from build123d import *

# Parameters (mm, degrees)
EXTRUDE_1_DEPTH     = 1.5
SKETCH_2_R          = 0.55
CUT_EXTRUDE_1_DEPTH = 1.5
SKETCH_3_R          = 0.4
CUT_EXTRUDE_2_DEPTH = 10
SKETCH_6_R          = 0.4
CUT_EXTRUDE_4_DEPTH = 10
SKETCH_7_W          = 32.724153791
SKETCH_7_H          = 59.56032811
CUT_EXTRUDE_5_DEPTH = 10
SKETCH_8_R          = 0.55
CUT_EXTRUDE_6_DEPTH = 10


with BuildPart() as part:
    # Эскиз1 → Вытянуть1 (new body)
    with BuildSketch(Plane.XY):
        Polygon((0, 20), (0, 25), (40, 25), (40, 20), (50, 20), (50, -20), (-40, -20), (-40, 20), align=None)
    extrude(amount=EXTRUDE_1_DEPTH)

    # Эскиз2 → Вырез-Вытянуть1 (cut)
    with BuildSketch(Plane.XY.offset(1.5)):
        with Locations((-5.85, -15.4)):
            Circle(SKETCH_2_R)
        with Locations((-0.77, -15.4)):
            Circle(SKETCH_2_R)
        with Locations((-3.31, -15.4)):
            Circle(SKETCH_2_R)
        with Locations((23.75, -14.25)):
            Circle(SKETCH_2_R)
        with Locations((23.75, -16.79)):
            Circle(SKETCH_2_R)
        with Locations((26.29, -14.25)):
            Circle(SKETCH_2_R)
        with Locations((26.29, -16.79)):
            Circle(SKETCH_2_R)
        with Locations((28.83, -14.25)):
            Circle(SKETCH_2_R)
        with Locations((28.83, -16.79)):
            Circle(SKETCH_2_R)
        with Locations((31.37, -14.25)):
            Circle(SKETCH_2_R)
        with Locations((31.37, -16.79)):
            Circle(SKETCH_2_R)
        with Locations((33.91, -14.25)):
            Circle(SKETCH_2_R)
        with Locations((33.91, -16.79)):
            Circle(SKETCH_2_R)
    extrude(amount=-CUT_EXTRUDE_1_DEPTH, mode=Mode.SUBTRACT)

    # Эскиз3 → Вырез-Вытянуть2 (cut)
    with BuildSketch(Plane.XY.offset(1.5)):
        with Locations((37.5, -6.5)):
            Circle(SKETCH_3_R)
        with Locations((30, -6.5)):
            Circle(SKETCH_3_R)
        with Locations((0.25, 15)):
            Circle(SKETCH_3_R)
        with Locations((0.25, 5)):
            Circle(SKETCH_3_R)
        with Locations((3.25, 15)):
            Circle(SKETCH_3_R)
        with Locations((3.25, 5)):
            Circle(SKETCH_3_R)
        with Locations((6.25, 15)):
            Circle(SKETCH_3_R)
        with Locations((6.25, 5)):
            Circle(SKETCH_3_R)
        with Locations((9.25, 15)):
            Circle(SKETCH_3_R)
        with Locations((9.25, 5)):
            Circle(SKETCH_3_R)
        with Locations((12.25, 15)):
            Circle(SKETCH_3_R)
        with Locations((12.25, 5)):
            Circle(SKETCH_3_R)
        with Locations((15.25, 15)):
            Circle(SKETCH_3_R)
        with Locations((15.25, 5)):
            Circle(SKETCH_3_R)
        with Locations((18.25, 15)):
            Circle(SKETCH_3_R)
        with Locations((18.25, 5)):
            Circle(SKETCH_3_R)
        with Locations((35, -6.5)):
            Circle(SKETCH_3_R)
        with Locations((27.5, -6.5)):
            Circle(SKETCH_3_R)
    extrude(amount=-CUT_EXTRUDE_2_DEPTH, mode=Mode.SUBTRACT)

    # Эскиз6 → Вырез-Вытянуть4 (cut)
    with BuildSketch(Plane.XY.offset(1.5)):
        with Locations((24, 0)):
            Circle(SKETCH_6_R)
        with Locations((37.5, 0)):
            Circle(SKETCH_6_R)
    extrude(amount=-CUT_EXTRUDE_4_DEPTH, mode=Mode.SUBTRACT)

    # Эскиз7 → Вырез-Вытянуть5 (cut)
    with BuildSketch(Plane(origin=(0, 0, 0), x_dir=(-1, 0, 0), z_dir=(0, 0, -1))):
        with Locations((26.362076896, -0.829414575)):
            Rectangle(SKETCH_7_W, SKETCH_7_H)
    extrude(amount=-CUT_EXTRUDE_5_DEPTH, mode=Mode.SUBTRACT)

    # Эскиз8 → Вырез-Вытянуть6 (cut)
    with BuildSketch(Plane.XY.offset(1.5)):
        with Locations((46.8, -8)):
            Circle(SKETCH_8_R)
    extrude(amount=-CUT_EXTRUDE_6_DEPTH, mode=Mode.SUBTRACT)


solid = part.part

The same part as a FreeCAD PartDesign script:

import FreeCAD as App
import Part
import Sketcher
Q = App.Units.Quantity


def add_polygon(sketch, points):
    """Adds a closed chain of lines whose ends are joined by coincident constraints."""
    first, n = sketch.GeometryCount, len(points)
    for a, b in zip(points, points[1:] + points[:1]):
        sketch.addGeometry(Part.LineSegment(App.Vector(*a, 0), App.Vector(*b, 0)), False)
    for i in range(n):
        sketch.addConstraint(Sketcher.Constraint("Coincident", first + i, 2, first + (i + 1) % n, 1))

doc = App.newDocument("Part")
body = doc.addObject("PartDesign::Body", "Body")

# Sketch on XY plane
sketch1 = body.newObject("Sketcher::SketchObject", "Sketch")
sketch1.AttachmentSupport = (doc.getObject("XY_Plane"), [""])
sketch1.MapMode = "FlatFace"
add_polygon(sketch1, [(0, 25), (0, 20), (-40, 20), (-40, -20), (50, -20), (50, 20), (40, 20), (40, 25)])  # lines 0-7
sketch1.addConstraint([
    Sketcher.Constraint("Vertical", 0),
    Sketcher.Constraint("Horizontal", 1),
    Sketcher.Constraint("Vertical", 2),
    Sketcher.Constraint("Horizontal", 3),
    Sketcher.Constraint("Vertical", 4),
    Sketcher.Constraint("Horizontal", 5),
    Sketcher.Constraint("Vertical", 6),
    Sketcher.Constraint("Horizontal", 7),
    Sketcher.Constraint("Symmetric", 2, 2, 5, 2, -1, 1),
    Sketcher.Constraint("PointOnObject", 0, 2, -2),
    Sketcher.Constraint("Horizontal", 1, 2, 4, 2),
    Sketcher.Constraint("Equal", 7, 2),
    Sketcher.Constraint("DistanceX", 1, 2, 1, 1, Q("40 mm")),
    Sketcher.Constraint("DistanceX", 3, 1, 3, 2, Q("90 mm")),
    Sketcher.Constraint("DistanceY", 0, 2, 0, 1, Q("5 mm")),
])
pad1 = body.newObject("PartDesign::Pad", "Pad")
pad1.Profile = sketch1
pad1.Length = 1.5

# Sketch on XY plane
sketch2 = body.newObject("Sketcher::SketchObject", "Sketch001")
sketch2.AttachmentSupport = (doc.getObject("XY_Plane"), [""])
sketch2.MapMode = "FlatFace"
sketch2.AttachmentOffset = App.Placement(App.Vector(0, 0, 1.5), App.Rotation())
sketch2.addGeometry([
    Part.Circle(App.Vector(-5.8, -15.4, 0), App.Vector(0, 0, 1), 0.6),  # 0
    Part.Circle(App.Vector(-0.8, -15.4, 0), App.Vector(0, 0, 1), 0.6),  # 1
    Part.Circle(App.Vector(-3.3, -15.4, 0), App.Vector(0, 0, 1), 0.6),  # 2
    Part.Circle(App.Vector(23.8, -14.2, 0), App.Vector(0, 0, 1), 0.6),  # 3
    Part.Circle(App.Vector(23.8, -16.8, 0), App.Vector(0, 0, 1), 0.6),  # 4
    Part.Circle(App.Vector(26.3, -14.2, 0), App.Vector(0, 0, 1), 0.6),  # 5
    Part.Circle(App.Vector(26.3, -16.8, 0), App.Vector(0, 0, 1), 0.6),  # 6
    Part.Circle(App.Vector(28.8, -14.2, 0), App.Vector(0, 0, 1), 0.6),  # 7
    Part.Circle(App.Vector(28.8, -16.8, 0), App.Vector(0, 0, 1), 0.6),  # 8
    Part.Circle(App.Vector(31.4, -14.2, 0), App.Vector(0, 0, 1), 0.6),  # 9
    Part.Circle(App.Vector(31.4, -16.8, 0), App.Vector(0, 0, 1), 0.6),  # 10
    Part.Circle(App.Vector(33.9, -14.2, 0), App.Vector(0, 0, 1), 0.6),  # 11
    Part.Circle(App.Vector(33.9, -16.8, 0), App.Vector(0, 0, 1), 0.6),  # 12
], False)
sketch2.addConstraint([
    Sketcher.Constraint("Equal", 0, 1),
    Sketcher.Constraint("Equal", 1, 2),
    Sketcher.Constraint("Equal", 2, 3),
    Sketcher.Constraint("Equal", 3, 4),
    Sketcher.Constraint("Equal", 4, 5),
    Sketcher.Constraint("Equal", 5, 6),
    Sketcher.Constraint("Equal", 6, 7),
    Sketcher.Constraint("Equal", 7, 8),
    Sketcher.Constraint("Equal", 8, 9),
    Sketcher.Constraint("Equal", 9, 10),
    Sketcher.Constraint("Equal", 10, 11),
    Sketcher.Constraint("Equal", 11, 12),
    Sketcher.Constraint("Horizontal", 0, 3, 1, 3),
    Sketcher.Constraint("Horizontal", 1, 3, 2, 3),
    Sketcher.Constraint("Horizontal", 3, 3, 5, 3),
    Sketcher.Constraint("Horizontal", 4, 3, 6, 3),
    Sketcher.Constraint("Horizontal", 5, 3, 7, 3),
    Sketcher.Constraint("Horizontal", 6, 3, 8, 3),
    Sketcher.Constraint("Horizontal", 7, 3, 9, 3),
    Sketcher.Constraint("Horizontal", 8, 3, 10, 3),
    Sketcher.Constraint("Horizontal", 9, 3, 11, 3),
    Sketcher.Constraint("Horizontal", 10, 3, 12, 3),
    Sketcher.Constraint("Vertical", 3, 3, 4, 3),
    Sketcher.Constraint("Vertical", 5, 3, 6, 3),
    Sketcher.Constraint("Vertical", 7, 3, 8, 3),
    Sketcher.Constraint("Vertical", 9, 3, 10, 3),
    Sketcher.Constraint("Vertical", 11, 3, 12, 3),
    Sketcher.Constraint("Diameter", 0, Q("1.1 mm")),
    Sketcher.Constraint("DistanceY", 0, 3, -1, 1, Q("15.4 mm")),
    Sketcher.Constraint("DistanceX", 0, 3, 3, 3, Q("29.6 mm")),
    Sketcher.Constraint("DistanceX", 2, 3, 5, 3, Q("29.6 mm")),
    Sketcher.Constraint("DistanceX", 1, 3, 7, 3, Q("29.6 mm")),
    Sketcher.Constraint("DistanceX", 0, 3, -1, 1, Q("5.85 mm")),
    Sketcher.Constraint("DistanceX", 1, 3, -1, 1, Q("0.77 mm")),
    Sketcher.Constraint("DistanceX", 2, 3, -1, 1, Q("3.31 mm")),
    Sketcher.Constraint("DistanceY", 3, 3, -1, 1, Q("14.25 mm")),
    Sketcher.Constraint("DistanceY", 4, 3, -1, 1, Q("16.79 mm")),
    Sketcher.Constraint("DistanceX", -1, 1, 9, 3, Q("31.37 mm")),
    Sketcher.Constraint("DistanceX", -1, 1, 11, 3, Q("33.91 mm")),
])
pocket1 = body.newObject("PartDesign::Pocket", "Pocket")
pocket1.Profile = sketch2
pocket1.Length = 1.5

# Sketch on XY plane
sketch3 = body.newObject("Sketcher::SketchObject", "Sketch002")
sketch3.AttachmentSupport = (doc.getObject("XY_Plane"), [""])
sketch3.MapMode = "FlatFace"
sketch3.AttachmentOffset = App.Placement(App.Vector(0, 0, 1.5), App.Rotation())
sketch3.addGeometry([
    Part.Circle(App.Vector(37.5, -6.5, 0), App.Vector(0, 0, 1), 0.4),  # 0
    Part.Circle(App.Vector(30, -6.5, 0), App.Vector(0, 0, 1), 0.4),  # 1
    Part.Circle(App.Vector(0.25, 15, 0), App.Vector(0, 0, 1), 0.4),  # 2
    Part.Circle(App.Vector(0.25, 5, 0), App.Vector(0, 0, 1), 0.4),  # 3
    Part.Circle(App.Vector(3.25, 15, 0), App.Vector(0, 0, 1), 0.4),  # 4
    Part.Circle(App.Vector(3.25, 5, 0), App.Vector(0, 0, 1), 0.4),  # 5
    Part.Circle(App.Vector(6.25, 15, 0), App.Vector(0, 0, 1), 0.4),  # 6
    Part.Circle(App.Vector(6.25, 5, 0), App.Vector(0, 0, 1), 0.4),  # 7
    Part.Circle(App.Vector(9.25, 15, 0), App.Vector(0, 0, 1), 0.4),  # 8
    Part.Circle(App.Vector(9.25, 5, 0), App.Vector(0, 0, 1), 0.4),  # 9
    Part.Circle(App.Vector(12.25, 15, 0), App.Vector(0, 0, 1), 0.4),  # 10
    Part.Circle(App.Vector(12.25, 5, 0), App.Vector(0, 0, 1), 0.4),  # 11
    Part.Circle(App.Vector(15.25, 15, 0), App.Vector(0, 0, 1), 0.4),  # 12
    Part.Circle(App.Vector(15.25, 5, 0), App.Vector(0, 0, 1), 0.4),  # 13
    Part.Circle(App.Vector(18.25, 15, 0), App.Vector(0, 0, 1), 0.4),  # 14
    Part.Circle(App.Vector(18.25, 5, 0), App.Vector(0, 0, 1), 0.4),  # 15
    Part.Circle(App.Vector(35, -6.5, 0), App.Vector(0, 0, 1), 0.4),  # 16
    Part.Circle(App.Vector(27.5, -6.5, 0), App.Vector(0, 0, 1), 0.4),  # 17
], False)
sketch3.addConstraint([
    Sketcher.Constraint("Equal", 0, 1),
    Sketcher.Constraint("Equal", 1, 2),
    Sketcher.Constraint("Equal", 2, 3),
    Sketcher.Constraint("Equal", 3, 4),
    Sketcher.Constraint("Equal", 4, 5),
    Sketcher.Constraint("Equal", 5, 6),
    Sketcher.Constraint("Equal", 6, 7),
    Sketcher.Constraint("Equal", 7, 8),
    Sketcher.Constraint("Equal", 8, 9),
    Sketcher.Constraint("Equal", 9, 10),
    Sketcher.Constraint("Equal", 10, 11),
    Sketcher.Constraint("Equal", 11, 12),
    Sketcher.Constraint("Equal", 12, 13),
    Sketcher.Constraint("Equal", 13, 14),
    Sketcher.Constraint("Equal", 14, 15),
    Sketcher.Constraint("Equal", 15, 16),
    Sketcher.Constraint("Equal", 16, 17),
    Sketcher.Constraint("Horizontal", 0, 3, 1, 3),
    Sketcher.Constraint("Horizontal", 2, 3, 4, 3),
    Sketcher.Constraint("Horizontal", 3, 3, 5, 3),
    Sketcher.Constraint("Horizontal", 4, 3, 6, 3),
    Sketcher.Constraint("Horizontal", 5, 3, 7, 3),
    Sketcher.Constraint("Horizontal", 6, 3, 8, 3),
    Sketcher.Constraint("Horizontal", 7, 3, 9, 3),
    Sketcher.Constraint("Horizontal", 8, 3, 10, 3),
    Sketcher.Constraint("Horizontal", 9, 3, 11, 3),
    Sketcher.Constraint("Horizontal", 10, 3, 12, 3),
    Sketcher.Constraint("Horizontal", 11, 3, 13, 3),
    Sketcher.Constraint("Horizontal", 12, 3, 14, 3),
    Sketcher.Constraint("Horizontal", 13, 3, 15, 3),
    Sketcher.Constraint("Horizontal", 1, 3, 16, 3),
    Sketcher.Constraint("Horizontal", 16, 3, 17, 3),
    Sketcher.Constraint("Vertical", 2, 3, 3, 3),
    Sketcher.Constraint("Vertical", 4, 3, 5, 3),
    Sketcher.Constraint("Vertical", 6, 3, 7, 3),
    Sketcher.Constraint("Vertical", 8, 3, 9, 3),
    Sketcher.Constraint("Vertical", 10, 3, 11, 3),
    Sketcher.Constraint("Vertical", 12, 3, 13, 3),
    Sketcher.Constraint("Vertical", 14, 3, 15, 3),
    Sketcher.Constraint("Diameter", 0, Q("0.8 mm")),
    Sketcher.Constraint("DistanceX", -1, 1, 1, 3, Q("30 mm")),
    Sketcher.Constraint("DistanceY", -1, 1, 2, 3, Q("15 mm")),
    Sketcher.Constraint("DistanceY", -1, 1, 3, 3, Q("5 mm")),
    Sketcher.Constraint("DistanceX", -1, 1, 16, 3, Q("35 mm")),
    Sketcher.Constraint("DistanceX", 2, 3, 4, 3, Q("3 mm")),
    Sketcher.Constraint("DistanceX", 4, 3, 6, 3, Q("3 mm")),
    Sketcher.Constraint("DistanceX", 6, 3, 8, 3, Q("3 mm")),
    Sketcher.Constraint("DistanceX", 8, 3, 10, 3, Q("3 mm")),
    Sketcher.Constraint("DistanceX", 10, 3, 12, 3, Q("3 mm")),
    Sketcher.Constraint("DistanceX", 12, 3, 14, 3, Q("3 mm")),
    Sketcher.Constraint("DistanceX", 17, 3, 0, 3, Q("10 mm")),
    Sketcher.Constraint("DistanceX", -1, 1, 0, 3, Q("37.5 mm")),
    Sketcher.Constraint("DistanceY", 0, 3, -1, 1, Q("6.5 mm")),
    Sketcher.Constraint("DistanceX", -1, 1, 2, 3, Q("0.25 mm")),
])
pocket2 = body.newObject("PartDesign::Pocket", "Pocket001")
pocket2.Profile = sketch3
pocket2.Length = 10

# Sketch on XY plane
sketch4 = body.newObject("Sketcher::SketchObject", "Sketch003")
sketch4.AttachmentSupport = (doc.getObject("XY_Plane"), [""])
sketch4.MapMode = "FlatFace"
sketch4.AttachmentOffset = App.Placement(App.Vector(0, 0, 1.5), App.Rotation())
sketch4.addGeometry([
    Part.Circle(App.Vector(24, 0, 0), App.Vector(0, 0, 1), 0.4),
    Part.Circle(App.Vector(37.5, 0, 0), App.Vector(0, 0, 1), 0.4),
], False)
sketch4.addConstraint([
    Sketcher.Constraint("Equal", 0, 1),
    Sketcher.Constraint("PointOnObject", 0, 3, -1),
    Sketcher.Constraint("PointOnObject", 1, 3, -1),
    Sketcher.Constraint("Diameter", 0, Q("0.8 mm")),
    Sketcher.Constraint("DistanceX", -1, 1, 0, 3, Q("24 mm")),
    Sketcher.Constraint("DistanceX", -1, 1, 1, 3, Q("37.5 mm")),
])
pocket3 = body.newObject("PartDesign::Pocket", "Pocket002")
pocket3.Profile = sketch4
pocket3.Length = 10

# Sketch on XY plane
sketch5 = body.newObject("Sketcher::SketchObject", "Sketch004")
sketch5.AttachmentSupport = (doc.getObject("XY_Plane"), [""])
sketch5.MapMode = "FlatFace"
add_polygon(sketch5, [(-10, 29), (-10, -31), (-43, -31), (-43, 29)])  # lines 0-3
sketch5.addConstraint([
    Sketcher.Constraint("Vertical", 0),
    Sketcher.Constraint("Horizontal", 1),
    Sketcher.Constraint("Vertical", 2),
    Sketcher.Constraint("Horizontal", 3),
    Sketcher.Constraint("DistanceX", 0, 2, -1, 1, Q("10 mm")),
    Sketcher.Constraint("DistanceY", 0, 2, 0, 1, Q("59.560328 mm")),
    Sketcher.Constraint("DistanceX", 1, 2, 1, 1, Q("32.724154 mm")),
    Sketcher.Constraint("DistanceY", 0, 2, -1, 1, Q("30.609579 mm")),
])
pocket4 = body.newObject("PartDesign::Pocket", "Pocket003")
pocket4.Profile = sketch5
pocket4.Length = 10
pocket4.Reversed = True

# Sketch on XY plane
sketch6 = body.newObject("Sketcher::SketchObject", "Sketch005")
sketch6.AttachmentSupport = (doc.getObject("XY_Plane"), [""])
sketch6.MapMode = "FlatFace"
sketch6.AttachmentOffset = App.Placement(App.Vector(0, 0, 1.5), App.Rotation())
sketch6.addGeometry(Part.Circle(App.Vector(46.8, -8, 0), App.Vector(0, 0, 1), 0.6), False)
sketch6.addConstraint([
    Sketcher.Constraint("Diameter", 0, Q("1.1 mm")),
    Sketcher.Constraint("DistanceY", 0, 3, -1, 1, Q("8 mm")),
    Sketcher.Constraint("DistanceX", -1, 1, 0, 3, Q("46.8 mm")),
])
pocket5 = body.newObject("PartDesign::Pocket", "Pocket004")
pocket5.Profile = sketch6
pocket5.Length = 10

doc.recompute()
